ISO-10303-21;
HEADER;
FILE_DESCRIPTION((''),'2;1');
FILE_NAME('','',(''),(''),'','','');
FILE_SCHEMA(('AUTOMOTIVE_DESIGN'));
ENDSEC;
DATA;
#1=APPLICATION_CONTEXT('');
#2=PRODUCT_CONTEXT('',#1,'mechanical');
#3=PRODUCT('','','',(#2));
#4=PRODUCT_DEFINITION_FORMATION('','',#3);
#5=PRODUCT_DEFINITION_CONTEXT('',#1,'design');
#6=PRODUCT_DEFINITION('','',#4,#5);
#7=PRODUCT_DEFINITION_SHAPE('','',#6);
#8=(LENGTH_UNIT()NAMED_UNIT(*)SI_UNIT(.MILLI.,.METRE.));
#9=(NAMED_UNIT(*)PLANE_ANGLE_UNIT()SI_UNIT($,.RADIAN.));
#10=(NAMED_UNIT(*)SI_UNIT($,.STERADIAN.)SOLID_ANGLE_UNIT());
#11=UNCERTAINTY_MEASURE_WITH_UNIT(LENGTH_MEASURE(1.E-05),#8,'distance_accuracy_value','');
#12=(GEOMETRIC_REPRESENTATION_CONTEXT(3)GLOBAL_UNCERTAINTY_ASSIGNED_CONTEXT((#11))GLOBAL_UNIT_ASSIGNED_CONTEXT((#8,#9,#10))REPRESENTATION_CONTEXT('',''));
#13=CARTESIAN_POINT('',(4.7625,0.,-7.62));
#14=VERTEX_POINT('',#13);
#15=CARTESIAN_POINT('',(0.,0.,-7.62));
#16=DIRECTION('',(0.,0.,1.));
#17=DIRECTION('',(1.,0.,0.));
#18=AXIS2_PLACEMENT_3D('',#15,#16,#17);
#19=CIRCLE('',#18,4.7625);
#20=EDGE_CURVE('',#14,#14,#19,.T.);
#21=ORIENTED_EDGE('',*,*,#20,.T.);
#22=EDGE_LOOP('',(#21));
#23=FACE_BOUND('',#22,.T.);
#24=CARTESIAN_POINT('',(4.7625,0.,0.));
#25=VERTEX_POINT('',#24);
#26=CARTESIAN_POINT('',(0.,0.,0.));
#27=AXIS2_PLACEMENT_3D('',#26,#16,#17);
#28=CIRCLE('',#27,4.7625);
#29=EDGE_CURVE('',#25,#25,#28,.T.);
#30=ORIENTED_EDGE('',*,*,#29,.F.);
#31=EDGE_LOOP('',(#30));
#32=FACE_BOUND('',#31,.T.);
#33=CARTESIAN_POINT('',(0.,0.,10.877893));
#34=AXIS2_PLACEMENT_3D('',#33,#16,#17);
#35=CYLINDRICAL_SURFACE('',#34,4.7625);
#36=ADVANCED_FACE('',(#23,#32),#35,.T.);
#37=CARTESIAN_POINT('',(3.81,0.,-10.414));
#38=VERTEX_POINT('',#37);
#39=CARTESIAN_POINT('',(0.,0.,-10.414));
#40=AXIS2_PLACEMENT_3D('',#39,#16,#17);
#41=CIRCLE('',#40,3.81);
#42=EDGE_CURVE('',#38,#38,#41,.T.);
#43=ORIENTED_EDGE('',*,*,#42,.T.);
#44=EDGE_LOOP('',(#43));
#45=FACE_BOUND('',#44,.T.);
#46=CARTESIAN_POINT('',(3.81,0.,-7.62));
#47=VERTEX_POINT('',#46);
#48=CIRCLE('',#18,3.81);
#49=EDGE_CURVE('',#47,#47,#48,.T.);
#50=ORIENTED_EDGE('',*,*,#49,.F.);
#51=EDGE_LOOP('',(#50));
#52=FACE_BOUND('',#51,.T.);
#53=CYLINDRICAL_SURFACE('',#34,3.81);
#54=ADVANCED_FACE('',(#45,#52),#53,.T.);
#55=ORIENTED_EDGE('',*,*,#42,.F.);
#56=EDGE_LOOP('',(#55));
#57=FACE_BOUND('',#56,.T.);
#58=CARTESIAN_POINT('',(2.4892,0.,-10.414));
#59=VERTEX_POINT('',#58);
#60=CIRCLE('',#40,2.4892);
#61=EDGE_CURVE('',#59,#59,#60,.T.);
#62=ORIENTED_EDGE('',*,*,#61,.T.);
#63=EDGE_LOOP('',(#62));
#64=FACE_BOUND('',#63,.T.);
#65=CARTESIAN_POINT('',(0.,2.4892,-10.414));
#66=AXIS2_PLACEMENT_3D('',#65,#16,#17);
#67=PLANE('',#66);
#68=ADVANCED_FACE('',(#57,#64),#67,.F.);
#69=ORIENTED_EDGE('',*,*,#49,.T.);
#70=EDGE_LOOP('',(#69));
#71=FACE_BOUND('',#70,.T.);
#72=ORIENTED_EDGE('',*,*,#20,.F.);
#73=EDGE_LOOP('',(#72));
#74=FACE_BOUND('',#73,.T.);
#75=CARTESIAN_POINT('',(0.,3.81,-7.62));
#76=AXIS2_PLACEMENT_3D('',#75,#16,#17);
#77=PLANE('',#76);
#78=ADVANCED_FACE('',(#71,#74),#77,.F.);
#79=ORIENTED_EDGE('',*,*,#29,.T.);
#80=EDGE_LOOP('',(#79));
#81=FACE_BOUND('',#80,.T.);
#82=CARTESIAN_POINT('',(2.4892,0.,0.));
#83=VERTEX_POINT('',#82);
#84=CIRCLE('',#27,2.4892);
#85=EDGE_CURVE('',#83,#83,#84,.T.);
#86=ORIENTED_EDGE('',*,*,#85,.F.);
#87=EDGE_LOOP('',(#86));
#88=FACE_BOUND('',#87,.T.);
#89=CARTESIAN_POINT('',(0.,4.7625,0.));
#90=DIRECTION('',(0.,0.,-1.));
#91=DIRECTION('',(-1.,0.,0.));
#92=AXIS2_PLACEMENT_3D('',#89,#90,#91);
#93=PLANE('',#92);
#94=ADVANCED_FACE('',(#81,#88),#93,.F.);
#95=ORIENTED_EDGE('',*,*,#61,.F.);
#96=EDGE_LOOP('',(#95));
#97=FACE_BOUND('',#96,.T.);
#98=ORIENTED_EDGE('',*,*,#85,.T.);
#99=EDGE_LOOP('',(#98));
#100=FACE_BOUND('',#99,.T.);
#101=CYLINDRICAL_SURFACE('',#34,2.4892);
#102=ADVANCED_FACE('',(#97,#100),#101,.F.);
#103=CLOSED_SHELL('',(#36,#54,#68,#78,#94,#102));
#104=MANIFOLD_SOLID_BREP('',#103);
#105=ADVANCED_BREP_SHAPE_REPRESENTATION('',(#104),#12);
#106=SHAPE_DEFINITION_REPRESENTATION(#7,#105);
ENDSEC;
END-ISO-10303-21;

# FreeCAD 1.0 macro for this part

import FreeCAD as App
import Part
import Sketcher
from FreeCAD import Vector
Q = App.Units.Quantity


def add_polygon(sketch, points):
    """Adds a closed chain of lines whose ends are joined by coincident constraints."""
    first, n = sketch.GeometryCount, len(points)
    for a, b in zip(points, points[1:] + points[:1]):
        sketch.addGeometry(Part.LineSegment(App.Vector(*a, 0), App.Vector(*b, 0)), False)
    for i in range(n):
        sketch.addConstraint(Sketcher.Constraint("Coincident", first + i, 2, first + (i + 1) % n, 1))

doc = App.newDocument("Part")
body = doc.addObject("PartDesign::Body", "Body")

sketch1 = doc.addObject("Sketcher::SketchObject", "Sketch")
body.addObject(sketch1)
sketch1.AttachmentSupport = (doc.YZ_Plane, [""])
sketch1.MapMode = "FlatFace"
add_polygon(sketch1, [(2.5, 0), (2.5, -10.4), (3.8, -10.4), (3.8, -7.6), (4.8, -7.6), (4.8, 0)])
sketch1.addConstraint(Sketcher.Constraint("Vertical", 0))
sketch1.addConstraint(Sketcher.Constraint("Horizontal", 1))
sketch1.addConstraint(Sketcher.Constraint("Vertical", 2))
sketch1.addConstraint(Sketcher.Constraint("Horizontal", 3))
sketch1.addConstraint(Sketcher.Constraint("Vertical", 4))
sketch1.addConstraint(Sketcher.Constraint("Horizontal", 5))
sketch1.addConstraint(Sketcher.Constraint("PointOnObject", 4, 2, -1))
sketch1.addConstraint(Sketcher.Constraint("DistanceY", 4, 1, 4, 2, Q("0.3 in")))
sketch1.addConstraint(Sketcher.Constraint("DistanceY", 0, 2, 0, 1, Q("0.41 in")))
sketch1.addConstraint(Sketcher.Constraint("DistanceX", 1, 1, 1, 2, Q("0.052 in")))
sketch1.addConstraint(Sketcher.Constraint("DistanceX", -1, 1, 1, 2, Q("0.15 in")))
sketch1.addConstraint(Sketcher.Constraint("DistanceX", 3, 1, 3, 2, Q("0.0375 in")))
revolution = doc.addObject("PartDesign::Revolution", "Revolution")
body.addObject(revolution)
revolution.Profile = sketch1
revolution.ReferenceAxis = (sketch1, ["V_Axis"])
revolution.Angle = 360

doc.recompute()
